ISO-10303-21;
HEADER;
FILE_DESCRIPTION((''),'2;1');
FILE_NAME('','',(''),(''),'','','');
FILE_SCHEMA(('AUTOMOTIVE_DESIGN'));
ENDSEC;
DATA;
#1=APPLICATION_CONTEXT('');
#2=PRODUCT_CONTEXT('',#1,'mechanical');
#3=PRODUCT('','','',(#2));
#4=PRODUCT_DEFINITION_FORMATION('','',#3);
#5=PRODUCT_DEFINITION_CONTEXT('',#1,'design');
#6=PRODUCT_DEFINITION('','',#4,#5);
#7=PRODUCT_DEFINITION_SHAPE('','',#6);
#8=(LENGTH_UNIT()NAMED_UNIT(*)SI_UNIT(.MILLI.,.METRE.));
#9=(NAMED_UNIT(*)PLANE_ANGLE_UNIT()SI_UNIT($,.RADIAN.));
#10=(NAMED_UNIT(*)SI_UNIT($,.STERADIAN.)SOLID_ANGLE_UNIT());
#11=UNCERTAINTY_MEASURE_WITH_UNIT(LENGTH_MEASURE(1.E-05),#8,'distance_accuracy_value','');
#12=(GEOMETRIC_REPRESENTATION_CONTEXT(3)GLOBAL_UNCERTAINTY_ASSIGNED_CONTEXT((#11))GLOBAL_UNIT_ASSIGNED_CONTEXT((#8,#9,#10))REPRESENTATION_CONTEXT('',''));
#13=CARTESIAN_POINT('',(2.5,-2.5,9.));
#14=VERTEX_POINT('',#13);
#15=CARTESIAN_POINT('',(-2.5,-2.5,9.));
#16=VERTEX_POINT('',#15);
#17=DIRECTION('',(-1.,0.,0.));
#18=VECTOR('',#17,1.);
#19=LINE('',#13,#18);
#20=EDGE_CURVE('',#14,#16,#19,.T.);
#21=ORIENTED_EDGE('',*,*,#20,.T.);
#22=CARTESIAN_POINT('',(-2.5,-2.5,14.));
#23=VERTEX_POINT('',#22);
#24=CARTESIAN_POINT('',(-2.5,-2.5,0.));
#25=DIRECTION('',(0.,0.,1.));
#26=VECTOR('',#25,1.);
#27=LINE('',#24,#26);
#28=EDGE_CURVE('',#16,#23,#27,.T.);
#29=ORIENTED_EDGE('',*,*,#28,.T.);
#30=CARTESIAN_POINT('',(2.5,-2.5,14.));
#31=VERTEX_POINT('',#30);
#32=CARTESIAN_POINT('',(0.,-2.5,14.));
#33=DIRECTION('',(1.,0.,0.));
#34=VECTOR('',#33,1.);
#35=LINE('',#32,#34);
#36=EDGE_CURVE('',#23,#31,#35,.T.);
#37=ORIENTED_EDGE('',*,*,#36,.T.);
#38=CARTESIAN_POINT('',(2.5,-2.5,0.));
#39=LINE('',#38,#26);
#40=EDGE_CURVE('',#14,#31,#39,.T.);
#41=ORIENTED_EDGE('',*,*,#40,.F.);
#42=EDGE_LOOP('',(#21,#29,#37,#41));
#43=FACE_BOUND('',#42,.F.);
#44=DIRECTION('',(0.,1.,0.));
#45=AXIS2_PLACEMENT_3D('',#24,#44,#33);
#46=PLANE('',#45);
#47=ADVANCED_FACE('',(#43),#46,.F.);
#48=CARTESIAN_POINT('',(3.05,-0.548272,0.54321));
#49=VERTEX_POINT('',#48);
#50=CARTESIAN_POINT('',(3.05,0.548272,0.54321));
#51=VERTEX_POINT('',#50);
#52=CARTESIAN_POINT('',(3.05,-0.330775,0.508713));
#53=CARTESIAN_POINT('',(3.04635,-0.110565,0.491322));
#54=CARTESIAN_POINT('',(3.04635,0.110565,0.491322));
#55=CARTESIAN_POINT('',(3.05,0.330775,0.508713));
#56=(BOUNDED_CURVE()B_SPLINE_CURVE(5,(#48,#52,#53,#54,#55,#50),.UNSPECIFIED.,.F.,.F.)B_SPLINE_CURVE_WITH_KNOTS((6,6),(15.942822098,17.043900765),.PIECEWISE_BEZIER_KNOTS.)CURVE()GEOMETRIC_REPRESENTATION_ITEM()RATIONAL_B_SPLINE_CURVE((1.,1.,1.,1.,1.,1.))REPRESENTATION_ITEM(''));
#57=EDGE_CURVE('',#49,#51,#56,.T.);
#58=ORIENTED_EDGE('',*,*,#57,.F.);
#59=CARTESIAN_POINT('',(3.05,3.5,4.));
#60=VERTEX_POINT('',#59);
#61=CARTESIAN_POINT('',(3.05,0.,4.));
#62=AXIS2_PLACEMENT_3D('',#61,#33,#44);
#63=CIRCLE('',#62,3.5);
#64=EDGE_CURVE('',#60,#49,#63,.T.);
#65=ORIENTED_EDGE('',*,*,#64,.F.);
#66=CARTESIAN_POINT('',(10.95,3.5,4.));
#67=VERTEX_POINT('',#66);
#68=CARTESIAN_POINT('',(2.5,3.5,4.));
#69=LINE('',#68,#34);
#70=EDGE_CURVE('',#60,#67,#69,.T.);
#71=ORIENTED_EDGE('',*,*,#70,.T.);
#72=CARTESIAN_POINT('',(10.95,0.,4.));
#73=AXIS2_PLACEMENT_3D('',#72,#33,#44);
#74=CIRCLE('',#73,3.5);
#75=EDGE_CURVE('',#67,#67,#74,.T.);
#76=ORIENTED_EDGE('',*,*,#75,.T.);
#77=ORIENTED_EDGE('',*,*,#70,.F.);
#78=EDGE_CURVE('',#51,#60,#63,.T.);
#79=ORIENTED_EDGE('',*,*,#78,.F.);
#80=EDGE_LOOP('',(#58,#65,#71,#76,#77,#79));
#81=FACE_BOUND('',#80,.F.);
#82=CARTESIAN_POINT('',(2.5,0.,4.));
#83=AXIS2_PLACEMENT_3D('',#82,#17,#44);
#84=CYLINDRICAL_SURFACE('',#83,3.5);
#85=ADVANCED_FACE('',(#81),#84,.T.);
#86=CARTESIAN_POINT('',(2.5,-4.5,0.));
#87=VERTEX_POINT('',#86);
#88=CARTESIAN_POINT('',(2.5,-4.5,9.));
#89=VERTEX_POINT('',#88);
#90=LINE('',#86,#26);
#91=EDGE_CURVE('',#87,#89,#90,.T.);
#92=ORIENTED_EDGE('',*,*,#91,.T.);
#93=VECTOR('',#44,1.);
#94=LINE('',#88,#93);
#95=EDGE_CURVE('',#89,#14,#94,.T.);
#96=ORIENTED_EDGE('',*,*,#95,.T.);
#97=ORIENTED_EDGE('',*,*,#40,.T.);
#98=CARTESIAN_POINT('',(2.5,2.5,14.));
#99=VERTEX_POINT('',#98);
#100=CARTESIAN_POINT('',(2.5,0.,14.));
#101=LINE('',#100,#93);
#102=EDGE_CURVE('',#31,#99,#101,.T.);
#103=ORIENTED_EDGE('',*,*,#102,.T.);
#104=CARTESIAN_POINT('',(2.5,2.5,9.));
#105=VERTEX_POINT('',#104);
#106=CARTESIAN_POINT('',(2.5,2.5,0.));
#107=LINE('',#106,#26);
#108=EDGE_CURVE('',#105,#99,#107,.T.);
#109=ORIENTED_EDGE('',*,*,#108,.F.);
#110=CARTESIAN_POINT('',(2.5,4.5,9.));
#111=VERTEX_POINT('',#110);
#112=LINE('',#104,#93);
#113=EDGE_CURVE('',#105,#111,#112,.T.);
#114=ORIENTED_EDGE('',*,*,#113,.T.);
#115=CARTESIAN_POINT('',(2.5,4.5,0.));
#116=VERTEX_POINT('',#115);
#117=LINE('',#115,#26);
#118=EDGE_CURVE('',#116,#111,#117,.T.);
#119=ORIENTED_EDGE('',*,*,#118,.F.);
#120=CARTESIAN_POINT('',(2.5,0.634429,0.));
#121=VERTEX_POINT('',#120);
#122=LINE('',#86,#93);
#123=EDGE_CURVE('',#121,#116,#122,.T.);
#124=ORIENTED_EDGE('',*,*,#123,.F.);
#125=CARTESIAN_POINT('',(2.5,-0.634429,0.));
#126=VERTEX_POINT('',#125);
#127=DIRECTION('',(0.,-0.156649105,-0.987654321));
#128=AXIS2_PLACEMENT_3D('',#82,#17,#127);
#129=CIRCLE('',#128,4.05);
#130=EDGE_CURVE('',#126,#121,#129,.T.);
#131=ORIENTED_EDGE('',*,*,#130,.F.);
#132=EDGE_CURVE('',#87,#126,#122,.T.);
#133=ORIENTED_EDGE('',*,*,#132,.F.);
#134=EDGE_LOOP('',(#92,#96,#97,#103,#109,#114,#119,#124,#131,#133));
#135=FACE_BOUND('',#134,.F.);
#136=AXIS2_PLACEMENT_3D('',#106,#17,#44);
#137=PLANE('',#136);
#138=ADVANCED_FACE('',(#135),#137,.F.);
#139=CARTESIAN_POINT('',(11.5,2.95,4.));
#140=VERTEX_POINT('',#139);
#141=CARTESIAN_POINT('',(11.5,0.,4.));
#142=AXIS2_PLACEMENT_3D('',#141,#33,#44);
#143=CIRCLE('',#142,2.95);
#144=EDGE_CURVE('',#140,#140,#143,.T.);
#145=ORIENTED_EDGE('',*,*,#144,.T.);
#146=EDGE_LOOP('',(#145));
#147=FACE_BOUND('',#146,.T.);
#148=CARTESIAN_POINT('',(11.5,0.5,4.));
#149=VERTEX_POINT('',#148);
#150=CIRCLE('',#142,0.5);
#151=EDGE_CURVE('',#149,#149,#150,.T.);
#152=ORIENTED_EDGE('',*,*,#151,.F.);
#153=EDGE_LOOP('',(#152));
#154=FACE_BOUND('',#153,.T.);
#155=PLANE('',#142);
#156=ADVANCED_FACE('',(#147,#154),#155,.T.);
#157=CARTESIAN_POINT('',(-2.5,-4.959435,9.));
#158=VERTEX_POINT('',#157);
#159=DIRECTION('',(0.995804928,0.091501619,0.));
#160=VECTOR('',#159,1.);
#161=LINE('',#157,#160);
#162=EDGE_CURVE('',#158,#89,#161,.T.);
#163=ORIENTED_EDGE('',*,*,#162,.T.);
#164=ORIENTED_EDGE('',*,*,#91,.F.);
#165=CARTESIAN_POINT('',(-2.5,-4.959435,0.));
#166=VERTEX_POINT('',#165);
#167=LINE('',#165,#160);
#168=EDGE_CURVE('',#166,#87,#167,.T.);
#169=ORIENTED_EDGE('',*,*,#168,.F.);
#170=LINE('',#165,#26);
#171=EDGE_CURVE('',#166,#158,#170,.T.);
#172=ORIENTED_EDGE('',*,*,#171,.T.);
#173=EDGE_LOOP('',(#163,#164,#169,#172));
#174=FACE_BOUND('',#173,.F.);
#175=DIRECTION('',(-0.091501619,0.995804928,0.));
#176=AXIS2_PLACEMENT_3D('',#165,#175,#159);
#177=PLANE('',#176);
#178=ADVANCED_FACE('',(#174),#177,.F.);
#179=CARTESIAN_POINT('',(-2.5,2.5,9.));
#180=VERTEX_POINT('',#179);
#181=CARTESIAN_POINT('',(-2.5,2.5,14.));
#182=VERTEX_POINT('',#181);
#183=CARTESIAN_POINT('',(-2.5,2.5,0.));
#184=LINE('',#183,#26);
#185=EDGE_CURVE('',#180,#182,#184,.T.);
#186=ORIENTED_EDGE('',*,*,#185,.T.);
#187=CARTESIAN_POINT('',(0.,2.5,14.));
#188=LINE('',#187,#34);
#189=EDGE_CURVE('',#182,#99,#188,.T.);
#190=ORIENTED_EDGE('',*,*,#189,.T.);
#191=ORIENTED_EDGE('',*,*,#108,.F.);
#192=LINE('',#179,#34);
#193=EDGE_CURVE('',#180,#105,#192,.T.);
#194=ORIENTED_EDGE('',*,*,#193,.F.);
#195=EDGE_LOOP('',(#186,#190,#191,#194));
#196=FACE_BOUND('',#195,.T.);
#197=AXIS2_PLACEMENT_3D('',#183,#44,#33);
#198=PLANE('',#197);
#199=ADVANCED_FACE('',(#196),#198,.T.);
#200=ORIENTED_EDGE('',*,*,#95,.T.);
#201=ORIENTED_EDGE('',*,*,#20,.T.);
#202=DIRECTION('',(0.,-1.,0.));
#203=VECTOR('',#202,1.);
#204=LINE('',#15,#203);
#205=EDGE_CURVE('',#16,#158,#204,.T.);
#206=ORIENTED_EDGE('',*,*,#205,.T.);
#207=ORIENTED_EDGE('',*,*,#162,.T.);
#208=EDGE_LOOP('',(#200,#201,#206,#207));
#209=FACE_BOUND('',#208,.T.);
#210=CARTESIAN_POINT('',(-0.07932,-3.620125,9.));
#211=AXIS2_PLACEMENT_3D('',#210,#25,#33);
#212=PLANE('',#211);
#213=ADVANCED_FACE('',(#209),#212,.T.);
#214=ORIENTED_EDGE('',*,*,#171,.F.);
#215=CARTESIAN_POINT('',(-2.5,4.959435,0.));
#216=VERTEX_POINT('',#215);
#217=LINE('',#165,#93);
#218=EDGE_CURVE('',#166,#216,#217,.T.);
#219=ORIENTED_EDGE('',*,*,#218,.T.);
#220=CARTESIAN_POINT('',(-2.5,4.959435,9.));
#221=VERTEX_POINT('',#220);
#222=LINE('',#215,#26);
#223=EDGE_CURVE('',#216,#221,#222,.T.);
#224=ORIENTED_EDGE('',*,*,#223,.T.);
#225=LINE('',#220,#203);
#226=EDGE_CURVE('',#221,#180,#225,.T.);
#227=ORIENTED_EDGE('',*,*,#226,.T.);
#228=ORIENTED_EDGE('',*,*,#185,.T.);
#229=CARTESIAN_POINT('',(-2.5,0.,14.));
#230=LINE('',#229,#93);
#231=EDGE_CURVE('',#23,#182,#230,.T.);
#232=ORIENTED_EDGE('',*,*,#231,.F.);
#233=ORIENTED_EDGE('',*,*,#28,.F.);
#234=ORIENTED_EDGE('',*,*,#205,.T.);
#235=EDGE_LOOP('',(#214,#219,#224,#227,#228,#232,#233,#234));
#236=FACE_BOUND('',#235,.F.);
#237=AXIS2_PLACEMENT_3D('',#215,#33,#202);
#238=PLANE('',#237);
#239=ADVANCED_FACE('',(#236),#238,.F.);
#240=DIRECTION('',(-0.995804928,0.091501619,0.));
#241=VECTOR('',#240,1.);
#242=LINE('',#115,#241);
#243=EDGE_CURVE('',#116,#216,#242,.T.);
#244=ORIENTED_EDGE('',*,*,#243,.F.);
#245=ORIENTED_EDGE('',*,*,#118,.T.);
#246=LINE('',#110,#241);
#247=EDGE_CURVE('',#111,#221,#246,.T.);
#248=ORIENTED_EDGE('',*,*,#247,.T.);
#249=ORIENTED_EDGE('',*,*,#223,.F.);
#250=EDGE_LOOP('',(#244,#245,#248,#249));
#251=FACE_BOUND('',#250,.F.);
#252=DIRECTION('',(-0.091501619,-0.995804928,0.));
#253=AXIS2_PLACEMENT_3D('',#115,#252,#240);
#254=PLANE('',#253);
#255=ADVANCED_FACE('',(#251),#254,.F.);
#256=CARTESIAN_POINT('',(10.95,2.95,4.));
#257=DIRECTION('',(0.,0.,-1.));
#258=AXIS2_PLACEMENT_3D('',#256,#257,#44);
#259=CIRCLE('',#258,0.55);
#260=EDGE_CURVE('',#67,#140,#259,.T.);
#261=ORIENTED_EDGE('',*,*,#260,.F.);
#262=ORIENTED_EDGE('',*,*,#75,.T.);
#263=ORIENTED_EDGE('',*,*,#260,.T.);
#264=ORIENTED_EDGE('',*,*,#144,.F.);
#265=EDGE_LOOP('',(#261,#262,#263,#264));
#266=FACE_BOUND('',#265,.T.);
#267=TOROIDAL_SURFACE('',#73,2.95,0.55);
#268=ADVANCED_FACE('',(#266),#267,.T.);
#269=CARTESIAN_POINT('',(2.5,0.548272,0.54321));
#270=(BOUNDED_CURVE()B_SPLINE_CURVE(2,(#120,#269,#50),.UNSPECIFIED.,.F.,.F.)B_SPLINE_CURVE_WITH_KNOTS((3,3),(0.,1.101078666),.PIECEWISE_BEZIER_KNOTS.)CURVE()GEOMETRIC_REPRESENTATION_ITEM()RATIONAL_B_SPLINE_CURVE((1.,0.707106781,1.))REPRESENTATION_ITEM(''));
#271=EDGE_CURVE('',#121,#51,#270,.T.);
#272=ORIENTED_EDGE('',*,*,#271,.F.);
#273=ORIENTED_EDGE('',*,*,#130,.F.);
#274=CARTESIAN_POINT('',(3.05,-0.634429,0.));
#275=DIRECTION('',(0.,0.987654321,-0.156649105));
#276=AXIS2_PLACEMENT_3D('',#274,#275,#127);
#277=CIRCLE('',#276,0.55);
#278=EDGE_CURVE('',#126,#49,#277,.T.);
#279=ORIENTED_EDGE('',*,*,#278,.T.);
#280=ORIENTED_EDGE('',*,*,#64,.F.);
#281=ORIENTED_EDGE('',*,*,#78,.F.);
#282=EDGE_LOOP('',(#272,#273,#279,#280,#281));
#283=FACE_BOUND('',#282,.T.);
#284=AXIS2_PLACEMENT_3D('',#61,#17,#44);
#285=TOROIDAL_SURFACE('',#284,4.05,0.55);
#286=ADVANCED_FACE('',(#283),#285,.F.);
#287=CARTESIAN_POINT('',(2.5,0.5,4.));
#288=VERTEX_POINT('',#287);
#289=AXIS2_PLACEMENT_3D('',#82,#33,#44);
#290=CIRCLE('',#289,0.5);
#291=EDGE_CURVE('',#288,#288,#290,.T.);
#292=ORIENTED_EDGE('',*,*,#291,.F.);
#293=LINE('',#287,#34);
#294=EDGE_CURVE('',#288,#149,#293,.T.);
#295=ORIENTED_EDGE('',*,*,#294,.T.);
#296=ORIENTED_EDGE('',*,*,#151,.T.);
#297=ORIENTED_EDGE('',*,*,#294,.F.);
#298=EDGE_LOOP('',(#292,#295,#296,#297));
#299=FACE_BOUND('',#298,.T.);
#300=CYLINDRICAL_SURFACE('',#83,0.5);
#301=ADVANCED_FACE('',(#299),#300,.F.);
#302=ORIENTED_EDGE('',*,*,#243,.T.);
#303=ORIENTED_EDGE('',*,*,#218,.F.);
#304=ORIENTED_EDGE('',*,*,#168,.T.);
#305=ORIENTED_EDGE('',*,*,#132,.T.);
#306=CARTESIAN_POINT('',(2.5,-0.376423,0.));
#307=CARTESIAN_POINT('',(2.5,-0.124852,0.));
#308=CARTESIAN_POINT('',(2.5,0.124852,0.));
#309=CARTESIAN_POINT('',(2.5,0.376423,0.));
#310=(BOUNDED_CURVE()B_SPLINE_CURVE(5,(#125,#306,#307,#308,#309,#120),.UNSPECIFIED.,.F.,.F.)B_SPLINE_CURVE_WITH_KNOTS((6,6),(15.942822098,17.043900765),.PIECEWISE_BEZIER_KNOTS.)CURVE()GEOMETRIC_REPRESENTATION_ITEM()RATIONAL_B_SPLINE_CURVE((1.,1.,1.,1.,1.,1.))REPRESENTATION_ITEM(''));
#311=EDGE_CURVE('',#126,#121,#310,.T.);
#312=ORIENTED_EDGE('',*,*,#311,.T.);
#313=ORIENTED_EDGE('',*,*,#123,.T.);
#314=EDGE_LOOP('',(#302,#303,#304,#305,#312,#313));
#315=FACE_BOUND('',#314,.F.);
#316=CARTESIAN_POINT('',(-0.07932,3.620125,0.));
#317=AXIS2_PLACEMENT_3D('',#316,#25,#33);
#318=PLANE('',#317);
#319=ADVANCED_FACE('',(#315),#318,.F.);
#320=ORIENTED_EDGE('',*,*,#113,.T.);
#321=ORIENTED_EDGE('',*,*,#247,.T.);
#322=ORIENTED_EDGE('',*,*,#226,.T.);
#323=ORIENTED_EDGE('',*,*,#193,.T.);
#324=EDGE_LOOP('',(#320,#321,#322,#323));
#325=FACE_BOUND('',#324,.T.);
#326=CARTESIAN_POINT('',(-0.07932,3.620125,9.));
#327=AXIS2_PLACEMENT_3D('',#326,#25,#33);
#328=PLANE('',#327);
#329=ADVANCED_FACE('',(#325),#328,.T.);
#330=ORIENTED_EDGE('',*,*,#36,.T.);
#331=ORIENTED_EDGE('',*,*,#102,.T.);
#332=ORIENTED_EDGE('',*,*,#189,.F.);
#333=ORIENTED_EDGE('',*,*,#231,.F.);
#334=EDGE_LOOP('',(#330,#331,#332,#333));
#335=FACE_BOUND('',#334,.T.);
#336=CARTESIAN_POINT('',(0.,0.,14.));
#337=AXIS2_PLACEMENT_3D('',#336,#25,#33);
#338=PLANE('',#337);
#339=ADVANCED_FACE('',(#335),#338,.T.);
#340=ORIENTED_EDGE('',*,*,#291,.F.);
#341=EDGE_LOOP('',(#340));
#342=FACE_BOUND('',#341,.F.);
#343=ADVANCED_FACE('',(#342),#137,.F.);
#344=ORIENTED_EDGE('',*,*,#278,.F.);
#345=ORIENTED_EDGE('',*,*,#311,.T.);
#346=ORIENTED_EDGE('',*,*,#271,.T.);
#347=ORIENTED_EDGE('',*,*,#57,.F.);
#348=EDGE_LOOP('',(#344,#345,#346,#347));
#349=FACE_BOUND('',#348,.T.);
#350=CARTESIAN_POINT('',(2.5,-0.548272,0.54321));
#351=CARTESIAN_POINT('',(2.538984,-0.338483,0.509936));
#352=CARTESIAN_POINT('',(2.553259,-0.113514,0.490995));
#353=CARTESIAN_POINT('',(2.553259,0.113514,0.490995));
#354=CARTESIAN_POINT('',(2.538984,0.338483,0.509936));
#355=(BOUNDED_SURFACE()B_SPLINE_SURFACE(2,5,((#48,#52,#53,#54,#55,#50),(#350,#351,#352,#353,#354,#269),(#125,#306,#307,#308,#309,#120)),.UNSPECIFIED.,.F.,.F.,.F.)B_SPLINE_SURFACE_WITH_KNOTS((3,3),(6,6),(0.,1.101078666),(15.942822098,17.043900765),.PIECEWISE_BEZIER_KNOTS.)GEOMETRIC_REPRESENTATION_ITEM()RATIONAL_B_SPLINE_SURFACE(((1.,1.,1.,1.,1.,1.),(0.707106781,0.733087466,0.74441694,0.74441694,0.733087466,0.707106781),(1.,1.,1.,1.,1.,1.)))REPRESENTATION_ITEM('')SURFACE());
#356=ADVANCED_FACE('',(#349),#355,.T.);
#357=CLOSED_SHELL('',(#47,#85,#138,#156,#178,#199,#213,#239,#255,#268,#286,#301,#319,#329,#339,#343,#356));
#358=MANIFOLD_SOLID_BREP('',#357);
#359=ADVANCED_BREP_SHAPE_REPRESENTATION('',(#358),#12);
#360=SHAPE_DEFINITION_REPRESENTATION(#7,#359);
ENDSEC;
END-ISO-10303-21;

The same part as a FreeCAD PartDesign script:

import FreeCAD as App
import Part
import Sketcher

V = App.Vector
Q = App.Units.Quantity


def edges_at(feature, points):
    """Names of the edges that pass closest to the given points."""
    edges = feature.Shape.Edges
    near = lambda p: min(range(len(edges)), key=lambda i: edges[i].distToShape(Part.Vertex(*p))[0])
    return sorted({f"Edge{near(p) + 1}" for p in points})

doc = App.newDocument("Part")
body = doc.addObject("PartDesign::Body", "Body")

sketch1 = doc.addObject("Sketcher::SketchObject", "Sketch")
body.addObject(sketch1)
sketch1.AttachmentSupport = (doc.XY_Plane, [""])
sketch1.MapMode = "FlatFace"
sketch1.addGeometry([
    Part.LineSegment(V(-2, 2, 0), V(-2, -2, 0)),
    Part.LineSegment(V(-2, -2, 0), V(2, -2, 0)),
    Part.LineSegment(V(2, -2, 0), V(2, 2, 0)),
    Part.LineSegment(V(2, 2, 0), V(-2, 2, 0)),
], False)
sketch1.addConstraint([
    Sketcher.Constraint("Coincident", 0, 2, 1, 1),
    Sketcher.Constraint("Coincident", 1, 2, 2, 1),
    Sketcher.Constraint("Coincident", 2, 2, 3, 1),
    Sketcher.Constraint("Coincident", 3, 2, 0, 1),
    Sketcher.Constraint("Vertical", 0),
    Sketcher.Constraint("Horizontal", 1),
    Sketcher.Constraint("Vertical", 2),
    Sketcher.Constraint("Horizontal", 3),
    Sketcher.Constraint("Symmetric", 0, 2, 2, 2, -1, 1),
    Sketcher.Constraint("Equal", 3, 0),
    Sketcher.Constraint("DistanceX", 1, 1, 1, 2, Q("5 mm")),
])
pad1 = doc.addObject("PartDesign::Pad", "Pad")
body.addObject(pad1)
pad1.Profile = sketch1
pad1.Length = 14

sketch2 = doc.addObject("Sketcher::SketchObject", "Sketch001")
body.addObject(sketch2)
sketch2.AttachmentSupport = (doc.XY_Plane, [""])
sketch2.MapMode = "FlatFace"
sketch2.addGeometry([
    Part.LineSegment(V(-2.5, 2.5, 0), V(2.5, 2.5, 0)),
    Part.LineSegment(V(2.5, 2.5, 0), V(2.5, 4.5, 0)),
    Part.LineSegment(V(2.5, 4.5, 0), V(-2.5, 5, 0)),
    Part.LineSegment(V(-2.5, 5, 0), V(-2.5, 2.5, 0)),
    Part.LineSegment(V(2.5, -4.5, 0), V(2.5, -2.5, 0)),
    Part.LineSegment(V(2.5, -2.5, 0), V(-2.5, -2.5, 0)),
    Part.LineSegment(V(-2.5, -2.5, 0), V(-2.5, -5, 0)),
    Part.LineSegment(V(-2.5, -5, 0), V(2.5, -4.5, 0)),
], False)
sketch2.addConstraint([
    Sketcher.Constraint("Coincident", 0, 2, 1, 1),
    Sketcher.Constraint("Coincident", 1, 2, 2, 1),
    Sketcher.Constraint("Coincident", 2, 2, 3, 1),
    Sketcher.Constraint("Coincident", 3, 2, 0, 1),
    Sketcher.Constraint("Coincident", 4, 2, 5, 1),
    Sketcher.Constraint("Coincident", 5, 2, 6, 1),
    Sketcher.Constraint("Coincident", 6, 2, 7, 1),
    Sketcher.Constraint("Coincident", 7, 2, 4, 1),
    Sketcher.Constraint("Horizontal", 0),
    Sketcher.Constraint("Vertical", 1),
    Sketcher.Constraint("Vertical", 3),
    Sketcher.Constraint("Vertical", 4),
    Sketcher.Constraint("Horizontal", 5),
    Sketcher.Constraint("Vertical", 6),
    Sketcher.Constraint("Symmetric", 3, 2, 4, 2, -1, 1),
    Sketcher.Constraint("Symmetric", 2, 2, 6, 2, -1),
    Sketcher.Constraint("Symmetric", 1, 2, 7, 2, -1),
    Sketcher.Constraint("DistanceX", 0, 1, 0, 2, Q("5 mm")),
    Sketcher.Constraint("DistanceY", 1, 1, 1, 2, Q("2 mm")),
    Sketcher.Constraint("DistanceY", 4, 2, 0, 2, Q("5 mm")),
    Sketcher.Constraint("Angle", 2, Q("174.75 deg")),
])
pad2 = doc.addObject("PartDesign::Pad", "Pad001")
body.addObject(pad2)
pad2.Profile = sketch2
pad2.Length = 9

sketch3 = doc.addObject("Sketcher::SketchObject", "Sketch002")
body.addObject(sketch3)
sketch3.AttachmentSupport = (doc.YZ_Plane, [""])
sketch3.MapMode = "FlatFace"
sketch3.AttachmentOffset = App.Placement(V(0, 0, 2.5), App.Rotation())
sketch3.addGeometry([
    Part.Circle(V(0, 4, 0), V(0, 0, 1), 3.5),
    Part.Circle(V(0, 4, 0), V(0, 0, 1), 0.5),
], False)
sketch3.addConstraint([
    Sketcher.Constraint("Coincident", 1, 3, 0, 3),
    Sketcher.Constraint("PointOnObject", 0, 3, -2),
    Sketcher.Constraint("Diameter", 0, Q("7 mm")),
    Sketcher.Constraint("Diameter", 1, Q("1 mm")),
    Sketcher.Constraint("DistanceY", -1, 1, 0, 3, Q("4 mm")),
])
pad3 = doc.addObject("PartDesign::Pad", "Pad002")
body.addObject(pad3)
pad3.Profile = sketch3
pad3.Length = 9
doc.recompute()

fillet = doc.addObject("PartDesign::Fillet", "Fillet")
body.addObject(fillet)
fillet.Base = (pad3, edges_at(pad3, [(2.5, -3.5, 4), (11.5, -3.5, 4)]))
fillet.Radius = 0.55

doc.recompute()
